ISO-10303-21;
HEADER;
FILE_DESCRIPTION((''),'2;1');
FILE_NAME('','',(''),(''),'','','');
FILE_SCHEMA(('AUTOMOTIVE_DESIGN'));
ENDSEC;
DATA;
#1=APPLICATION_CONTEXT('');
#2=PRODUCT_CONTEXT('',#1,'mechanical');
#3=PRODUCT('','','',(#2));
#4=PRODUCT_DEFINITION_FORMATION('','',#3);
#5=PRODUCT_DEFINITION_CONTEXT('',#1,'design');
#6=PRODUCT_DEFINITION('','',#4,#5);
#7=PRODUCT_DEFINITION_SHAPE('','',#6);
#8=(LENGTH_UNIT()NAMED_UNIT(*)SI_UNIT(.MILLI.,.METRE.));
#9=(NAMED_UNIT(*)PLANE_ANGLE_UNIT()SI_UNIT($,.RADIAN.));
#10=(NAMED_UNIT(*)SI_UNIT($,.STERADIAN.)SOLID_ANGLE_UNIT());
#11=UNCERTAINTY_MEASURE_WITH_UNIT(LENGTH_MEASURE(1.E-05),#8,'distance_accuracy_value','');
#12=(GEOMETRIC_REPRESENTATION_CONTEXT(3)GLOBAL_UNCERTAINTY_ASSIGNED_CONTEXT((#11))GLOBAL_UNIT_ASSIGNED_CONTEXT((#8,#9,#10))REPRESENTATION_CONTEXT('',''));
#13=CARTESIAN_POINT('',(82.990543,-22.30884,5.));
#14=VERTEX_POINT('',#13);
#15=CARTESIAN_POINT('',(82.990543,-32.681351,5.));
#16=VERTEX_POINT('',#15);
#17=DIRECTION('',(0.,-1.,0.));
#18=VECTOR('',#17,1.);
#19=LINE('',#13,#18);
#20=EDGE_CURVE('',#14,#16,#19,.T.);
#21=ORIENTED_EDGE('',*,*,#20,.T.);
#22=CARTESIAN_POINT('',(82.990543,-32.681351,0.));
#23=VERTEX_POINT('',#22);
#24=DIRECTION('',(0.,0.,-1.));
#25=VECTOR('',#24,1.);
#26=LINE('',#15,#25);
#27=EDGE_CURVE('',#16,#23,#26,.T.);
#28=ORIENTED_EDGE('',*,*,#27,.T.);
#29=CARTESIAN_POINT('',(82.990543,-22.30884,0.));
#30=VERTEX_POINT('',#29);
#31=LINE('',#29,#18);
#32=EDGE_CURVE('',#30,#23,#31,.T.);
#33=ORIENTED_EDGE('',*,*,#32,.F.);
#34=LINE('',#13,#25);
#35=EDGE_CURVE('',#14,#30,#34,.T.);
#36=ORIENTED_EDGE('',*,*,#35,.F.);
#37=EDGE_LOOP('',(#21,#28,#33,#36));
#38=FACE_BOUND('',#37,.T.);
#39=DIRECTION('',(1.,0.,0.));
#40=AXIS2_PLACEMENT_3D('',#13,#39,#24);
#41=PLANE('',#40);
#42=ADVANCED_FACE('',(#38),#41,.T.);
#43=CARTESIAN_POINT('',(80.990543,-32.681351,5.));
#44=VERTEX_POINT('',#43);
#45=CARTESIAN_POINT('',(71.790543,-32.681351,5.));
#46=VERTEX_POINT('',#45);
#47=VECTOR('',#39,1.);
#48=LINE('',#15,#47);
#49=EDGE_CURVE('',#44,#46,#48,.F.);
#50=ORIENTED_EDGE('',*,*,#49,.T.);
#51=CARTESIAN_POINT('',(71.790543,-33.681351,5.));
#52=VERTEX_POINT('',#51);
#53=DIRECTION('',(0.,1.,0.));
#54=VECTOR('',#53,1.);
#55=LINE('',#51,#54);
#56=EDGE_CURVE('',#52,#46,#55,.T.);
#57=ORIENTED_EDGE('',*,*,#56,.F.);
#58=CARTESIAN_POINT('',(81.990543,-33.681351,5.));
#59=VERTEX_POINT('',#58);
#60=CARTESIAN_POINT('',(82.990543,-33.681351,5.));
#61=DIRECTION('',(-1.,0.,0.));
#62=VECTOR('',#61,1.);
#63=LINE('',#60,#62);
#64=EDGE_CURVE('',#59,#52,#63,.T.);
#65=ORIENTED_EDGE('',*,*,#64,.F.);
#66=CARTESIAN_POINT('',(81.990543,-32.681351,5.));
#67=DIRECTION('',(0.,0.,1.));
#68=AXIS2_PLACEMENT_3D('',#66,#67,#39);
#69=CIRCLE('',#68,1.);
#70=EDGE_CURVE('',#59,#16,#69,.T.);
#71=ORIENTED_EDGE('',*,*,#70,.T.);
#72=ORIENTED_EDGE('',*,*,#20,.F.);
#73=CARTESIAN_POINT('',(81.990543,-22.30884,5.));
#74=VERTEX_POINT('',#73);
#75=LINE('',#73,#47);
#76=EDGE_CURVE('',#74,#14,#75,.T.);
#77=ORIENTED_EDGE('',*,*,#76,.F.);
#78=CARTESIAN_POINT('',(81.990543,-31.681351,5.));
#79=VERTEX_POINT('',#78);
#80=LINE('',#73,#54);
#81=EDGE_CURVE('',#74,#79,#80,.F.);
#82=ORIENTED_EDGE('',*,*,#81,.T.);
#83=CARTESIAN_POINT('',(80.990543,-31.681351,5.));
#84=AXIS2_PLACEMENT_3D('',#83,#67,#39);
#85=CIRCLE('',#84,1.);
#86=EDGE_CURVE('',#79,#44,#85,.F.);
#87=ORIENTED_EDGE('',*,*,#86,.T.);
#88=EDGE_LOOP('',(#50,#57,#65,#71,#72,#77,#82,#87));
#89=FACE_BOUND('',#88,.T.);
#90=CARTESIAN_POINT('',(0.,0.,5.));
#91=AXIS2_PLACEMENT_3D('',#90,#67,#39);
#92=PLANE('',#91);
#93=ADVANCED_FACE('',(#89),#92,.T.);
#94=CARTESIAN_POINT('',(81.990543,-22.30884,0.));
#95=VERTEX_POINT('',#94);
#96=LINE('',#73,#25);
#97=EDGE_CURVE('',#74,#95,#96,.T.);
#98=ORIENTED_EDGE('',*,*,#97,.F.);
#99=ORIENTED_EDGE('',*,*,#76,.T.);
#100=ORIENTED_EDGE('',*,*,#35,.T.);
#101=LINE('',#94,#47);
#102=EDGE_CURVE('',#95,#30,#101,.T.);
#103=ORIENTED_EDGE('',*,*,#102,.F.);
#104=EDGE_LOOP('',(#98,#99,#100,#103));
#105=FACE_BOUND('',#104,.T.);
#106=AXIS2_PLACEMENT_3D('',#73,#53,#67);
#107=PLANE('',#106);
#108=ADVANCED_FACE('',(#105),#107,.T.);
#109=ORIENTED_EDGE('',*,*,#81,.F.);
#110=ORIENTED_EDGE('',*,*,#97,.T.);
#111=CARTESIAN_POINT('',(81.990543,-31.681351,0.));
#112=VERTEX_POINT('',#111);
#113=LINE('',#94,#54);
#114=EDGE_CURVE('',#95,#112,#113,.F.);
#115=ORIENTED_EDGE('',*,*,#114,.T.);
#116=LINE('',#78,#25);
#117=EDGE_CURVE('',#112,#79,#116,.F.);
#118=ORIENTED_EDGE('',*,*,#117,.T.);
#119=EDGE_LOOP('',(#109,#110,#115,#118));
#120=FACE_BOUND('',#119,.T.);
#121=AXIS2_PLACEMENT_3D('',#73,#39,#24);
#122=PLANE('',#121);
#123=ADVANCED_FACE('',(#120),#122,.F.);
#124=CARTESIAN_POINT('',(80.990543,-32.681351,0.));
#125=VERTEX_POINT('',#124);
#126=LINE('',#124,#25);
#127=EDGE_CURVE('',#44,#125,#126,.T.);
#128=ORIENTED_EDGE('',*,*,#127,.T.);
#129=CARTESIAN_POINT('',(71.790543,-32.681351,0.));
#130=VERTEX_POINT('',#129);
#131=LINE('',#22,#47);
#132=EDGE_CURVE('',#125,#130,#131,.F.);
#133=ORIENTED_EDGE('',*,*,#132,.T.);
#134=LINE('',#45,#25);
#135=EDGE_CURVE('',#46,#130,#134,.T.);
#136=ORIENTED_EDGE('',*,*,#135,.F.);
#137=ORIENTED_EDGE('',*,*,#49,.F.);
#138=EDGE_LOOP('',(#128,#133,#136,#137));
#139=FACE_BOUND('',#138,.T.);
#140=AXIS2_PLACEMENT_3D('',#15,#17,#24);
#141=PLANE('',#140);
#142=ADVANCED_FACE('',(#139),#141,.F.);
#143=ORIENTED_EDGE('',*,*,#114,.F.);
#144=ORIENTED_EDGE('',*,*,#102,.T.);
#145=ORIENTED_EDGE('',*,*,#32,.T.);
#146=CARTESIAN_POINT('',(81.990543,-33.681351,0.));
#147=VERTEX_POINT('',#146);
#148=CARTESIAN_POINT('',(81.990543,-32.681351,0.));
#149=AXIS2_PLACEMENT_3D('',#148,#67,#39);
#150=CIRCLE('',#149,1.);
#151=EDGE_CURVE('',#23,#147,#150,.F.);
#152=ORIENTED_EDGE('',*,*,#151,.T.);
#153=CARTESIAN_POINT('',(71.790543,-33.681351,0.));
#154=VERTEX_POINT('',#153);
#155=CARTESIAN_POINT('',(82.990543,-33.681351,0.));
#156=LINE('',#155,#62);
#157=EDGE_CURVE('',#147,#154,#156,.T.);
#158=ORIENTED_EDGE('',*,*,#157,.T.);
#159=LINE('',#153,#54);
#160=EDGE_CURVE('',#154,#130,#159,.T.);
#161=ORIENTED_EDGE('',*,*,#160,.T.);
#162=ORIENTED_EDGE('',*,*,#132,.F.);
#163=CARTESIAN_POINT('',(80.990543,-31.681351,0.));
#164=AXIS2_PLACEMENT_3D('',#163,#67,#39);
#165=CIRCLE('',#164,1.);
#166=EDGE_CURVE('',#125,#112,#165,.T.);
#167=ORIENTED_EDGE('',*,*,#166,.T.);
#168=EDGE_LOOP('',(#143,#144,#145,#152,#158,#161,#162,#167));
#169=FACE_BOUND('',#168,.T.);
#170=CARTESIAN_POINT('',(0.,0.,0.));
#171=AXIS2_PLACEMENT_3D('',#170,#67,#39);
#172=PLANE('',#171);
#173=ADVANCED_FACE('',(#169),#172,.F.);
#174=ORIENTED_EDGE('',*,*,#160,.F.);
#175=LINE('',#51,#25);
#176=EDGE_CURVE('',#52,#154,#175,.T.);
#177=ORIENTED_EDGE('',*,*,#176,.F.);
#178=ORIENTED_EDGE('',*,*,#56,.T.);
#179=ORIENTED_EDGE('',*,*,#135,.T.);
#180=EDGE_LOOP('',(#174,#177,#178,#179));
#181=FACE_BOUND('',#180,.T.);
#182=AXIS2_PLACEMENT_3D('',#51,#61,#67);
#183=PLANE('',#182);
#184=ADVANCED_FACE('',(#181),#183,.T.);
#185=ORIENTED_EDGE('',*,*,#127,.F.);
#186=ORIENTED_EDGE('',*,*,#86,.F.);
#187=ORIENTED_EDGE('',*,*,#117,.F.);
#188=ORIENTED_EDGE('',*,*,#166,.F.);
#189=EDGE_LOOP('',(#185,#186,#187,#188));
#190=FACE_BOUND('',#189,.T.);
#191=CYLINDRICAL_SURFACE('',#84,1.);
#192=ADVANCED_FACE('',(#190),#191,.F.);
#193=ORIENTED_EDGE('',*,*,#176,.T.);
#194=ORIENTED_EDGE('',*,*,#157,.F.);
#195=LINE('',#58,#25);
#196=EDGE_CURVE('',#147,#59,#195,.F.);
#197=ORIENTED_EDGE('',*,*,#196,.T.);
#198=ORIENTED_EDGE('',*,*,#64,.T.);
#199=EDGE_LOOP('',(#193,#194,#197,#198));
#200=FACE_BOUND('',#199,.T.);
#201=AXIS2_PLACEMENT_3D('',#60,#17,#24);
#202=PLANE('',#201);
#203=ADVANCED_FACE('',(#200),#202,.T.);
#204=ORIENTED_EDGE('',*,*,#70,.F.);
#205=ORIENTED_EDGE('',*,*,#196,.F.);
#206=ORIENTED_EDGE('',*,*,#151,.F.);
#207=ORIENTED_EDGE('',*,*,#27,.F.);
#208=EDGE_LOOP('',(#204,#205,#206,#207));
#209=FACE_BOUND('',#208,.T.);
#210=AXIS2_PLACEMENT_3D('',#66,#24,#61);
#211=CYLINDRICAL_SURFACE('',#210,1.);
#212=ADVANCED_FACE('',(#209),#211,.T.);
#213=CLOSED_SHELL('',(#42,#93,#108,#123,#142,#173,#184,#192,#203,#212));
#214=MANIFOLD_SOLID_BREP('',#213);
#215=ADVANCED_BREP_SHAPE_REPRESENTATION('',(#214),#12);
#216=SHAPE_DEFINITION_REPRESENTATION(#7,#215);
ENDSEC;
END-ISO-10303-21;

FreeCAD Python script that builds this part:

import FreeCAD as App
import Part
import Sketcher
from FreeCAD import Vector
Q = App.Units.Quantity


def edges_at(feature, points):
    """Names of the edges that pass closest to the given points."""
    edges = feature.Shape.Edges
    near = lambda p: min(range(len(edges)), key=lambda i: edges[i].distToShape(Part.Vertex(*p))[0])
    return sorted({f"Edge{near(p) + 1}" for p in points})


def add_polygon(sketch, points):
    """Adds a closed chain of lines whose ends are joined by coincident constraints."""
    first, n = sketch.GeometryCount, len(points)
    for a, b in zip(points, points[1:] + points[:1]):
        sketch.addGeometry(Part.LineSegment(App.Vector(*a, 0), App.Vector(*b, 0)), False)
    for i in range(n):
        sketch.addConstraint(Sketcher.Constraint("Coincident", first + i, 2, first + (i + 1) % n, 1))

doc = App.newDocument("Part")
body = doc.addObject("PartDesign::Body", "Body")

# Sketch on XY plane
sketch1 = body.newObject("Sketcher::SketchObject", "Sketch")
sketch1.AttachmentSupport = (doc.getObject("XY_Plane"), [""])
sketch1.MapMode = "FlatFace"
add_polygon(sketch1, [(82.990543, -33.681351), (82.990543, -22.30884), (81.990543, -22.30884), (81.990543, -32.681351), (71.790543, -32.681351), (71.790543, -33.681351)])  # lines 0-5
sketch1.addConstraint([
    Sketcher.Constraint("Vertical", 0),
    Sketcher.Constraint("Horizontal", 1),
    Sketcher.Constraint("Vertical", 2),
    Sketcher.Constraint("Horizontal", 3),
    Sketcher.Constraint("Vertical", 4),
    Sketcher.Constraint("Horizontal", 5),
    Sketcher.Constraint("Equal", 1, 4),
    Sketcher.Constraint("DistanceX", 1, 2, 1, 1, Q("1 mm")),
    Sketcher.Constraint("DistanceX", 3, 2, 3, 1, Q("10.2 mm")),
    Sketcher.Constraint("DistanceY", 0, 1, 0, 2, Q("11.372511 mm")),
    Sketcher.Constraint("DistanceY", 0, 2, -1, 1, Q("22.30884 mm")),
    Sketcher.Constraint("DistanceX", -1, 1, 0, 2, Q("82.990543 mm")),
])
pad1 = body.newObject("PartDesign::Pad", "Pad")
pad1.Profile = sketch1
pad1.Length = 5
doc.recompute()

fillet = body.newObject("PartDesign::Fillet", "Fillet")
fillet.Base = (pad1, edges_at(pad1, [(81.991, -32.681, 2.5), (82.991, -33.681, 2.5)]))
fillet.Radius = 1

doc.recompute()
